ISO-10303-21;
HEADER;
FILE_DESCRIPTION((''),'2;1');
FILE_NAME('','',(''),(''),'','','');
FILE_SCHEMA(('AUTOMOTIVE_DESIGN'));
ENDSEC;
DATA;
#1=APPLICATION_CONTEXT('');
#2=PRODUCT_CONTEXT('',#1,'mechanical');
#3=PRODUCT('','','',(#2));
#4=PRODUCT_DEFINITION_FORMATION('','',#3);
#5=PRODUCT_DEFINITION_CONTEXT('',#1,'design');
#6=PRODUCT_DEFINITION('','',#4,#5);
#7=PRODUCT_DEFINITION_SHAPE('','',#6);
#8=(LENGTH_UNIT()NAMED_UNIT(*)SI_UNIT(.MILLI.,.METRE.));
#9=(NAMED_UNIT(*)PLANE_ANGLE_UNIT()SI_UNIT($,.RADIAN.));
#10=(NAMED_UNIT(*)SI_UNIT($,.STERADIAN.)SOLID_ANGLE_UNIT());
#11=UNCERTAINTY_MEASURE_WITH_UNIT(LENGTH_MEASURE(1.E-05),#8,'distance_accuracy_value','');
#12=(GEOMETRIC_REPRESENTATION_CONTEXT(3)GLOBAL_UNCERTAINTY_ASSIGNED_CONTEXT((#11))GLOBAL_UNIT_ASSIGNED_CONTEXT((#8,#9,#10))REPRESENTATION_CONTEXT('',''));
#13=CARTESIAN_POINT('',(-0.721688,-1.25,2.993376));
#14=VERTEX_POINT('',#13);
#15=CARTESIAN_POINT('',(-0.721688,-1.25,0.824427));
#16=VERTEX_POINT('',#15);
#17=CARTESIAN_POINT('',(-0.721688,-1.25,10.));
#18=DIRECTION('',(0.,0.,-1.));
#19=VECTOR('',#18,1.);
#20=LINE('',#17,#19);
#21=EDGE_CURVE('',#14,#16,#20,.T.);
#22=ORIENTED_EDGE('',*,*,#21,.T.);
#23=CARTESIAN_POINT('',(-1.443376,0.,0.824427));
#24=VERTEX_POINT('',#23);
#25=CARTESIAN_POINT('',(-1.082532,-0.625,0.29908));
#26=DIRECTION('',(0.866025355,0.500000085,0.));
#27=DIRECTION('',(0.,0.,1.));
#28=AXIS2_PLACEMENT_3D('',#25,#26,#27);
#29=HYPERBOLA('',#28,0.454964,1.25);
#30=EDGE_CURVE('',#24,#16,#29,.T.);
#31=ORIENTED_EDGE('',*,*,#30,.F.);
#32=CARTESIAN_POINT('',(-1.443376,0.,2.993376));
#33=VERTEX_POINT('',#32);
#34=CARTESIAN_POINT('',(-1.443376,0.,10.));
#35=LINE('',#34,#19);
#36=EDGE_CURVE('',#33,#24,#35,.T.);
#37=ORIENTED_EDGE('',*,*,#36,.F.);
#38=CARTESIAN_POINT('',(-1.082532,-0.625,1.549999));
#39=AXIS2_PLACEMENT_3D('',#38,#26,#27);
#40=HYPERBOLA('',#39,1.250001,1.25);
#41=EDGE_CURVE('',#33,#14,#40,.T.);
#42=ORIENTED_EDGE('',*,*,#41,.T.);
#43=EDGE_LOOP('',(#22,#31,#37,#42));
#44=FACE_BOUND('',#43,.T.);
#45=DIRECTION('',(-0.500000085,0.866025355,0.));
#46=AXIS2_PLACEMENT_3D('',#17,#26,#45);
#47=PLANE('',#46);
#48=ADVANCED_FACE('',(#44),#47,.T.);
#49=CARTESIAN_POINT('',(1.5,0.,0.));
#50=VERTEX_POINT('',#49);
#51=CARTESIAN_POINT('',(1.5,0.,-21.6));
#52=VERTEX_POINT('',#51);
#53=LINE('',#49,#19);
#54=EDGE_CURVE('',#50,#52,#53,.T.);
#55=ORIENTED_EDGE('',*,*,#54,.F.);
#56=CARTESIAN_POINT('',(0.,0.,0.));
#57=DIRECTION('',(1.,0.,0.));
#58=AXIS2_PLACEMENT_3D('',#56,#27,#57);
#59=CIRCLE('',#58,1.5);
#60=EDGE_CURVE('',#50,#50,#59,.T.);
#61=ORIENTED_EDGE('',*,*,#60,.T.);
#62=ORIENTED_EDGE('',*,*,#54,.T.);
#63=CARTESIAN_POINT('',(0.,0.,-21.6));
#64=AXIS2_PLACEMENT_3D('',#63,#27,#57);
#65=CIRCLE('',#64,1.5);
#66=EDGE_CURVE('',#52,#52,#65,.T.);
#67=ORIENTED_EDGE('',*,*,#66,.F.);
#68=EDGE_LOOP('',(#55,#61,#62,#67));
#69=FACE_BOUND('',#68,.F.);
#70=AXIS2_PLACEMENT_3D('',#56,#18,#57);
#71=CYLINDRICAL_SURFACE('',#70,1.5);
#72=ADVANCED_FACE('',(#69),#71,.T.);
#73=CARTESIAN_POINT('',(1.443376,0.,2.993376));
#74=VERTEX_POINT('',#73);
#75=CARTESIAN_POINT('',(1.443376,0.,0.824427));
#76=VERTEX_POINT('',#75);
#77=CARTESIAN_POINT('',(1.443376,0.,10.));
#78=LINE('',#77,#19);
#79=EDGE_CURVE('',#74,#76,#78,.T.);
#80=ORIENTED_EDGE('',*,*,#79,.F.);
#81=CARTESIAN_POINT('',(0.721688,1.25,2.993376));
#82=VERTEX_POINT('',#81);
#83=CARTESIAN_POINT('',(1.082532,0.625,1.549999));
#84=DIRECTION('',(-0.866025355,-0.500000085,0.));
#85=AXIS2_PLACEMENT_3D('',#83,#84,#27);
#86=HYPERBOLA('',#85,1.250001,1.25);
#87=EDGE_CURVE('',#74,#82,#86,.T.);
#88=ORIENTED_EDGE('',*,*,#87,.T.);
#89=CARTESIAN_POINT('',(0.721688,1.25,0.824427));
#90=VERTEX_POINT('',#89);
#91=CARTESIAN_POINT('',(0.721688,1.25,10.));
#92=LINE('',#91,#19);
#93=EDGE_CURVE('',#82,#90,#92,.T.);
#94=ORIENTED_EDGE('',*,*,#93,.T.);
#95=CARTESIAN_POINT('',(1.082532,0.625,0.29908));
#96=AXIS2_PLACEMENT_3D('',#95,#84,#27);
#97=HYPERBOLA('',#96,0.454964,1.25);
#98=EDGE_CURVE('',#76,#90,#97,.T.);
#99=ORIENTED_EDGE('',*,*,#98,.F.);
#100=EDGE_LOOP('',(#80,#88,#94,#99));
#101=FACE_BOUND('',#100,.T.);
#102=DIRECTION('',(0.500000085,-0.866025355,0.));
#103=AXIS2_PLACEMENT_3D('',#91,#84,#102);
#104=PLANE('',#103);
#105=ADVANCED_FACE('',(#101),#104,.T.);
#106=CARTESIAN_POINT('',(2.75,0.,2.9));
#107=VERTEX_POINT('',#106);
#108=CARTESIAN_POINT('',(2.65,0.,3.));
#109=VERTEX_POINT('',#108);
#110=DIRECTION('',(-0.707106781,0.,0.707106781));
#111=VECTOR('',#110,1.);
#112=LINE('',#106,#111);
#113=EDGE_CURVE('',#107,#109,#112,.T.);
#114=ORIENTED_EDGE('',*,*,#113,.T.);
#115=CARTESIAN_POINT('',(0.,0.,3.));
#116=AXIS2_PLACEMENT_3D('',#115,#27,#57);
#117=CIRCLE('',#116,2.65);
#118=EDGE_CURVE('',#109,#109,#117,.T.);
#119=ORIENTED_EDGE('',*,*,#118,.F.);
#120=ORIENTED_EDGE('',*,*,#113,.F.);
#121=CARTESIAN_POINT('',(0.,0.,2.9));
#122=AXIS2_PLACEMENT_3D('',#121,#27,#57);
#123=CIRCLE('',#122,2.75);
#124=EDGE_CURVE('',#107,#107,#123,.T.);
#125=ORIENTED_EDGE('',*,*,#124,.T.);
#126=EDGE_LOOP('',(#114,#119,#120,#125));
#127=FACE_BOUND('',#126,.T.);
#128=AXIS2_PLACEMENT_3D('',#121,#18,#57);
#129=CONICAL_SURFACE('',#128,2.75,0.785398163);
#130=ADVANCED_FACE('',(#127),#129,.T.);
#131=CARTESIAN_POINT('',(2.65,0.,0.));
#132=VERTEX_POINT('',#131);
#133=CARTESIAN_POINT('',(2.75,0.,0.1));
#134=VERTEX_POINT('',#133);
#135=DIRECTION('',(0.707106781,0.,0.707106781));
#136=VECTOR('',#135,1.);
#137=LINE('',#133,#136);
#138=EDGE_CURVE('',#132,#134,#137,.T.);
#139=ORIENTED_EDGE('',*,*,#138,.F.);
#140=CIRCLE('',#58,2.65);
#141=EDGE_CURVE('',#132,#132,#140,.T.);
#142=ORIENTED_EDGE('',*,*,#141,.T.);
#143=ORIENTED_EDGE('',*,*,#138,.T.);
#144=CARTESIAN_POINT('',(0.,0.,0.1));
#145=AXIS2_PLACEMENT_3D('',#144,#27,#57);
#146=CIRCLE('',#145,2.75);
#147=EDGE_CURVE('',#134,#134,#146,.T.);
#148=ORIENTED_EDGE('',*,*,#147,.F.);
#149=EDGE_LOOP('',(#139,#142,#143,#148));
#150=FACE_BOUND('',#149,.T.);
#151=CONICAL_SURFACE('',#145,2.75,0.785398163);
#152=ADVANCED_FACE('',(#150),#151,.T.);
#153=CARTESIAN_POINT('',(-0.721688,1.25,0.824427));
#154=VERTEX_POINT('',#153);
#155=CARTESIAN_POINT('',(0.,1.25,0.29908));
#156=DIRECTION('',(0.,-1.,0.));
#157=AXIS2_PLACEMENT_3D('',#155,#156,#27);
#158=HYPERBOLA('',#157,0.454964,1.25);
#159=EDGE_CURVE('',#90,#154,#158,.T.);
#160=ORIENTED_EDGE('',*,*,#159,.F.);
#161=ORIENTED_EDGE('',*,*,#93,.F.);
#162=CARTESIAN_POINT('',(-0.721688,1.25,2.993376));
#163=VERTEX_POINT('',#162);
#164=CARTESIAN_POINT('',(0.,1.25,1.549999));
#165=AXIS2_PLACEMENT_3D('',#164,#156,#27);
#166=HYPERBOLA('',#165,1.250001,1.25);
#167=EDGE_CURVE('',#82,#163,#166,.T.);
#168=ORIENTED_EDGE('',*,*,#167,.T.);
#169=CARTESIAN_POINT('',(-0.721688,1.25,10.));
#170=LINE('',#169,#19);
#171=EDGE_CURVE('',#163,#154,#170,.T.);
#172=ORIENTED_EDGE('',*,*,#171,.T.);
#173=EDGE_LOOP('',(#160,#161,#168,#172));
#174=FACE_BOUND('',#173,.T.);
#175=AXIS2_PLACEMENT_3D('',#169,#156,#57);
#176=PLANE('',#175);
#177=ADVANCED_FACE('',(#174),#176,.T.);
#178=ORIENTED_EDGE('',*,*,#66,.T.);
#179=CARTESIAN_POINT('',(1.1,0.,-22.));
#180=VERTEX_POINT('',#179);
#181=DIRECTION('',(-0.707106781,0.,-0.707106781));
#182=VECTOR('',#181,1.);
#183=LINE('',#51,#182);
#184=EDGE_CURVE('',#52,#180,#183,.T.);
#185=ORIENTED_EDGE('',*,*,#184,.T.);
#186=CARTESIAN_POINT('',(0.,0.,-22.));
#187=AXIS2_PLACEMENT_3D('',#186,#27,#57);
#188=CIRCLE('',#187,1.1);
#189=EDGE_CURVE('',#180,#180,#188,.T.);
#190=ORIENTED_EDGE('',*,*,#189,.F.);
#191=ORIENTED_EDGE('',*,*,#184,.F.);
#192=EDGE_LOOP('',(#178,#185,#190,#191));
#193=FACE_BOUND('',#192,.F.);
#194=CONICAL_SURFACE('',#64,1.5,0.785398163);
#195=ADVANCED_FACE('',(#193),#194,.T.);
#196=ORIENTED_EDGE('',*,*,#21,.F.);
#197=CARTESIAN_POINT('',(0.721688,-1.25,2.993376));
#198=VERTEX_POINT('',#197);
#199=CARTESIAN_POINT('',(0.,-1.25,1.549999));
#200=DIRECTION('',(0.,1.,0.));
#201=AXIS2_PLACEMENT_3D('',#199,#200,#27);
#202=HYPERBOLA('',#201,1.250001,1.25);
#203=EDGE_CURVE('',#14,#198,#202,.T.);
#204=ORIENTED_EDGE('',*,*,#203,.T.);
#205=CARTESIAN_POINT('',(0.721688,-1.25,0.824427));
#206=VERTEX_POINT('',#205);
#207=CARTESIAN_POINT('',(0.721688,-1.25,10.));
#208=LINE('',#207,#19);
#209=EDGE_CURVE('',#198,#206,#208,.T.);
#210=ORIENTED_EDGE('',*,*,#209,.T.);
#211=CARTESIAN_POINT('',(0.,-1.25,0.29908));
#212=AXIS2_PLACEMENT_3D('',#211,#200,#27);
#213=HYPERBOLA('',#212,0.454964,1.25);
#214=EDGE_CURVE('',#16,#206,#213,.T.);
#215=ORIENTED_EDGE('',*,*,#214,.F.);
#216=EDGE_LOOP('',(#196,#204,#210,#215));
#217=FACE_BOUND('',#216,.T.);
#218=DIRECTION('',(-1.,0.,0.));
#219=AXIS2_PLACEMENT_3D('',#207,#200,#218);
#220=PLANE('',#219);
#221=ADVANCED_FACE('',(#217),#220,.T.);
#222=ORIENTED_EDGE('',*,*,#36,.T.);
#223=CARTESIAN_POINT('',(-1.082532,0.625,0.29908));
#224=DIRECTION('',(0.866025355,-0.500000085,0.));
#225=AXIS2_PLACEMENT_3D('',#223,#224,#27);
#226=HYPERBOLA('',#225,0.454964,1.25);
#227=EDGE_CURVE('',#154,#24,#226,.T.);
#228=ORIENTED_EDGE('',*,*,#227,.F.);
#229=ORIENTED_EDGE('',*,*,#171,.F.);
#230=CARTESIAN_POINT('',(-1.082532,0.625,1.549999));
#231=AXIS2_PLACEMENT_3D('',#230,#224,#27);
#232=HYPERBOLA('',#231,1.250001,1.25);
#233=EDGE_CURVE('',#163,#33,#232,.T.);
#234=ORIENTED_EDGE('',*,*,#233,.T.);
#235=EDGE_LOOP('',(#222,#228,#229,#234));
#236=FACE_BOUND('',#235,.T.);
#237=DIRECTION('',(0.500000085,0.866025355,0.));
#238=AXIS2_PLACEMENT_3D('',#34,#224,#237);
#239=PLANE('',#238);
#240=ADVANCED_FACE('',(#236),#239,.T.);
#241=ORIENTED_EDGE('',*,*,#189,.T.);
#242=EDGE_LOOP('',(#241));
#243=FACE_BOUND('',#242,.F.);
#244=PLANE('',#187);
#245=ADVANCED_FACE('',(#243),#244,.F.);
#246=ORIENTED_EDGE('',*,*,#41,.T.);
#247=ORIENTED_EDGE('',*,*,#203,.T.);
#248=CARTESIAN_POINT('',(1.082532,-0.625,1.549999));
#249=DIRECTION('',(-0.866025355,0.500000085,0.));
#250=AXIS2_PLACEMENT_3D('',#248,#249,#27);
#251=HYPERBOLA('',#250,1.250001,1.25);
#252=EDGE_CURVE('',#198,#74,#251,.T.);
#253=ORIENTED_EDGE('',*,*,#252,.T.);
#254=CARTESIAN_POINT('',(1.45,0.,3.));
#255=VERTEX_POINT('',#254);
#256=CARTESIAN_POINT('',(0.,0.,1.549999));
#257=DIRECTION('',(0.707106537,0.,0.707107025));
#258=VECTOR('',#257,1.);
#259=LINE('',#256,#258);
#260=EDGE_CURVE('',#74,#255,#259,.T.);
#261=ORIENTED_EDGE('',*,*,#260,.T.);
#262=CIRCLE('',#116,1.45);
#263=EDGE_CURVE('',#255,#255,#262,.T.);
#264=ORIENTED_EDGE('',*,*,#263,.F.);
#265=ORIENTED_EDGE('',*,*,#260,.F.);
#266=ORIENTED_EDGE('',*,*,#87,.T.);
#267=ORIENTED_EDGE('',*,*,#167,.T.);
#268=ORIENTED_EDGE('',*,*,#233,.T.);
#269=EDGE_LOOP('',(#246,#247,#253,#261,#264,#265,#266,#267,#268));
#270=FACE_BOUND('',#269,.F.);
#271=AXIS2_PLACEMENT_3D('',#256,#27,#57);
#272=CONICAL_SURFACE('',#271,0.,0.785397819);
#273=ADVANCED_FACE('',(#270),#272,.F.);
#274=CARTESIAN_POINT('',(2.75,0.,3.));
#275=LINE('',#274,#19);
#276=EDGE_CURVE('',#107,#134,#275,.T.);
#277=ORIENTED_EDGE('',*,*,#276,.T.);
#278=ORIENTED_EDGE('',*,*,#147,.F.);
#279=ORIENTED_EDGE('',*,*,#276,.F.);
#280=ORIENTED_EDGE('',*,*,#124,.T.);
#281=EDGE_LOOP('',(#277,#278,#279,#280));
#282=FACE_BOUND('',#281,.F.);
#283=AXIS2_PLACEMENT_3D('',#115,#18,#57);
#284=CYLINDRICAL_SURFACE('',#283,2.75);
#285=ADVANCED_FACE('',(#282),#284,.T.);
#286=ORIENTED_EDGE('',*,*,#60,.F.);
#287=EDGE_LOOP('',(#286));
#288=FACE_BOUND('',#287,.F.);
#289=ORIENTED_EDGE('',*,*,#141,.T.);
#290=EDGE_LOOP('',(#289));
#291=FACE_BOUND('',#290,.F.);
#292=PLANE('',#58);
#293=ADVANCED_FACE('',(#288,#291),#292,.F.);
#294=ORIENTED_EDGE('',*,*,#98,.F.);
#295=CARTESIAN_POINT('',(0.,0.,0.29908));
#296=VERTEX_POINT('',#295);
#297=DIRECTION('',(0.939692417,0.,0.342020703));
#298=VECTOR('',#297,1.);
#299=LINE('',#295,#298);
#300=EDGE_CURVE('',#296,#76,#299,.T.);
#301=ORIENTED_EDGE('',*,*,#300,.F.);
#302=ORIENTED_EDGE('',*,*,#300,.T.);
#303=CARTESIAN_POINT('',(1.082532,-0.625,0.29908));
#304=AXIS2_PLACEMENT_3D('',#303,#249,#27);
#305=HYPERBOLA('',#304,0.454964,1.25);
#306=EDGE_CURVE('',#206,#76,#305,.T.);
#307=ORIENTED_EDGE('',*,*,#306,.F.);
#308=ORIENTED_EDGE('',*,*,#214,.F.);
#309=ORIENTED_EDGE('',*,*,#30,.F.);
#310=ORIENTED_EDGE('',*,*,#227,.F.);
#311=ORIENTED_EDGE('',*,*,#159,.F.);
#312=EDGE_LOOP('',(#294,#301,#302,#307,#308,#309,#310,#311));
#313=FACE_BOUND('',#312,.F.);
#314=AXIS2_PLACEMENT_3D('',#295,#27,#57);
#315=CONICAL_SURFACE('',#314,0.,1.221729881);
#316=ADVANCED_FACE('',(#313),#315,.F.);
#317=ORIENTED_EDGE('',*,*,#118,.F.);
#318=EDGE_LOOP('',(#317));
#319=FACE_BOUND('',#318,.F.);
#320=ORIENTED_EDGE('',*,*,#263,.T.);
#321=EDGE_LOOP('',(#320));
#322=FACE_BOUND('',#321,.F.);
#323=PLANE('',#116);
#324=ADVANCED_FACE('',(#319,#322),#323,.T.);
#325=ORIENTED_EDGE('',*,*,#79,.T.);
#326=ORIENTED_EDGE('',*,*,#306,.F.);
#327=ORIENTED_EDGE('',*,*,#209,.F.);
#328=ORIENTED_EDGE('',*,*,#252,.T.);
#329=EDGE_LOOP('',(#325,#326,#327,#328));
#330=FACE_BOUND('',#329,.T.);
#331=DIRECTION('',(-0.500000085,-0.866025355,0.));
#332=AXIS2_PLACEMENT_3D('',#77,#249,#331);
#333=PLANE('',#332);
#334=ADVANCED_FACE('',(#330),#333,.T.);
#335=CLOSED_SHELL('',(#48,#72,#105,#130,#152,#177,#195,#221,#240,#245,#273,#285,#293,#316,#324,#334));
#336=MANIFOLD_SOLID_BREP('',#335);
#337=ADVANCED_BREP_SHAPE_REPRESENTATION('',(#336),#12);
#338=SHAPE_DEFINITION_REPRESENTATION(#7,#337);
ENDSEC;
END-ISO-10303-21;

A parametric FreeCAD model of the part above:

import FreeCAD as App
import Part
import Sketcher

V = App.Vector
Q = App.Units.Quantity


def edges_at(feature, points):
    """Names of the edges that pass closest to the given points."""
    edges = feature.Shape.Edges
    near = lambda p: min(range(len(edges)), key=lambda i: edges[i].distToShape(Part.Vertex(*p))[0])
    return sorted({f"Edge{near(p) + 1}" for p in points})


def add_polygon(sketch, points):
    """Adds a closed chain of lines whose ends are joined by coincident constraints."""
    first, n = sketch.GeometryCount, len(points)
    for a, b in zip(points, points[1:] + points[:1]):
        sketch.addGeometry(Part.LineSegment(App.Vector(*a, 0), App.Vector(*b, 0)), False)
    for i in range(n):
        sketch.addConstraint(Sketcher.Constraint("Coincident", first + i, 2, first + (i + 1) % n, 1))

doc = App.newDocument("Part")
params = doc.addObject("Spreadsheet::Sheet", "Params")
for row, (alias, value) in enumerate([
    ("sketch1_height", "8.7 mm"),
    ("sketch1_width", "2.75 mm"),
    ("revolution_angle", "360 deg"),
    ("sketch2_diameter", "7.5 mm"),
    ("sketch3_height", "22 mm"),
    ("sketch3_height2", "3 mm"),
    ("sketch3_width", "1.3 mm"),
    ("sketch3_width2", "1.5 mm"),
    ("sketch3_width3", "1.25 mm"),
    ("revolution2_angle", "360 deg"),
    ("chamfer_size", "0.4 mm"),
    ("chamfer2_size", "0.1 mm"),
], start=1):
    params.set(f"A{row}", alias)
    params.set(f"B{row}", "=" + value)
    params.setAlias(f"B{row}", alias)

body = doc.addObject("PartDesign::Body", "Body")

sketch1 = doc.addObject("Sketcher::SketchObject", "Sketch")
body.addObject(sketch1)
sketch1.AttachmentSupport = (doc.XZ_Plane, [""])
sketch1.MapMode = "FlatFace"
add_polygon(sketch1, [(0, 0.3), (2.8, 1.3), (2.8, 10), (0, 10)])
sketch1.addConstraint(Sketcher.Constraint("Vertical", 1))
sketch1.addConstraint(Sketcher.Constraint("Horizontal", 2))
sketch1.addConstraint(Sketcher.Constraint("Vertical", 3))
sketch1.addConstraint(Sketcher.Constraint("PointOnObject", 2, 2, -2))
sketch1.addConstraint(Sketcher.Constraint("DistanceY", 1, 1, 1, 2, Q("8.7 mm")))
sketch1.addConstraint(Sketcher.Constraint("DistanceY", -1, 1, 1, 2, Q("10 mm")))
sketch1.addConstraint(Sketcher.Constraint("DistanceX", 2, 2, 2, 1, Q("2.75 mm")))
sketch1.addConstraint(Sketcher.Constraint("DistanceY", 3, 2, 3, 1, Q("9.70092 mm")))
sketch1.setExpression("Constraints[8]", "Params.sketch1_height")
sketch1.setExpression("Constraints[10]", "Params.sketch1_width")
revolution = doc.addObject("PartDesign::Revolution", "Revolution")
body.addObject(revolution)
revolution.Profile = sketch1
revolution.ReferenceAxis = (sketch1, ["V_Axis"])
revolution.setExpression("Angle", "Params.revolution_angle")

sketch2 = doc.addObject("Sketcher::SketchObject", "Sketch001")
body.addObject(sketch2)
sketch2.AttachmentSupport = (doc.XY_Plane, [""])
sketch2.MapMode = "FlatFace"
sketch2.AttachmentOffset = App.Placement(V(0, 0, 10), App.Rotation())
sketch2.addGeometry(Part.Circle(V(0, 0, 0), V(0, 0, 1), 3.8), False)
add_polygon(sketch2, [(1.4, 0), (0.7, -1.2), (-0.7, -1.2), (-1.4, 0), (-0.7, 1.2), (0.7, 1.2)])
sketch2.addConstraint(Sketcher.Constraint("Horizontal", 2))
sketch2.addConstraint(Sketcher.Constraint("Horizontal", 5))
sketch2.addConstraint(Sketcher.Constraint("Coincident", 0, 3, -1, 1))
sketch2.addConstraint(Sketcher.Constraint("Symmetric", 1, 2, 4, 2, -1, 1))
sketch2.addConstraint(Sketcher.Constraint("Symmetric", 3, 2, 6, 2, -1, 1))
sketch2.addConstraint(Sketcher.Constraint("PointOnObject", 3, 2, -1))
sketch2.addConstraint(Sketcher.Constraint("Parallel", 3, 6))
sketch2.addConstraint(Sketcher.Constraint("Vertical", 2, 2, 4, 2))
sketch2.addConstraint(Sketcher.Constraint("Diameter", 0, Q("7.5 mm")))
sketch2.addConstraint(Sketcher.Constraint("Angle", 1, Q("-120.000006 deg")))
sketch2.addConstraint(Sketcher.Constraint("DistanceY", 2, 2, 4, 2, Q("2.5 mm")))
sketch2.addConstraint(Sketcher.Constraint("DistanceX", 2, 2, 2, 1, Q("1.443376 mm")))
sketch2.setExpression("Constraints[14]", "Params.sketch2_diameter")
pocket1 = doc.addObject("PartDesign::Pocket", "Pocket")
body.addObject(pocket1)
pocket1.Profile = sketch2
pocket1.Type = "ThroughAll"
body2 = doc.addObject("PartDesign::Body", "Body001")

sketch3 = doc.addObject("Sketcher::SketchObject", "Sketch002")
body2.addObject(sketch3)
sketch3.AttachmentSupport = (doc.getObject("XZ_Plane001"), [""])
sketch3.MapMode = "FlatFace"
add_polygon(sketch3, [(2.8, 3), (1.4, 3), (0, 1.5), (0, -22), (1.5, -22), (1.5, 0), (2.8, 0)])
sketch3.addConstraint(Sketcher.Constraint("Horizontal", 0))
sketch3.addConstraint(Sketcher.Constraint("Vertical", 2))
sketch3.addConstraint(Sketcher.Constraint("Horizontal", 3))
sketch3.addConstraint(Sketcher.Constraint("Vertical", 4))
sketch3.addConstraint(Sketcher.Constraint("Horizontal", 5))
sketch3.addConstraint(Sketcher.Constraint("Vertical", 6))
sketch3.addConstraint(Sketcher.Constraint("PointOnObject", 1, 2, -2))
sketch3.addConstraint(Sketcher.Constraint("PointOnObject", 4, 2, -1))
sketch3.addConstraint(Sketcher.Constraint("DistanceY", 4, 1, 4, 2, Q("22 mm")))
sketch3.addConstraint(Sketcher.Constraint("DistanceY", 6, 1, 6, 2, Q("3 mm")))
sketch3.addConstraint(Sketcher.Constraint("Angle", 1, Q("-134.99998 deg")))
sketch3.addConstraint(Sketcher.Constraint("DistanceX", 0, 2, 0, 1, Q("1.3 mm")))
sketch3.addConstraint(Sketcher.Constraint("DistanceX", 3, 1, 3, 2, Q("1.5 mm")))
sketch3.addConstraint(Sketcher.Constraint("DistanceX", 5, 1, 5, 2, Q("1.25 mm")))
sketch3.setExpression("Constraints[15]", "Params.sketch3_height")
sketch3.setExpression("Constraints[16]", "Params.sketch3_height2")
sketch3.setExpression("Constraints[18]", "Params.sketch3_width")
sketch3.setExpression("Constraints[19]", "Params.sketch3_width2")
sketch3.setExpression("Constraints[20]", "Params.sketch3_width3")
revolution2 = doc.addObject("PartDesign::Revolution", "Revolution001")
body2.addObject(revolution2)
revolution2.Profile = sketch3
revolution2.ReferenceAxis = (sketch3, ["V_Axis"])
revolution2.setExpression("Angle", "Params.revolution2_angle")
doc.recompute()

boolean = doc.addObject("PartDesign::Boolean", "Boolean")
body2.addObject(boolean)
boolean.Type = "Cut"
boolean.addObjects([body])
doc.recompute()

chamfer = doc.addObject("PartDesign::Chamfer", "Chamfer")
body2.addObject(chamfer)
chamfer.Base = (boolean, edges_at(boolean, [(-1.5, 0, -22)]))
chamfer.setExpression("Size", "Params.chamfer_size")
doc.recompute()

chamfer2 = doc.addObject("PartDesign::Chamfer", "Chamfer001")
body2.addObject(chamfer2)
chamfer2.Base = (chamfer, edges_at(chamfer, [(-2.75, 0, 0), (-2.75, 0, 3)]))
chamfer2.setExpression("Size", "Params.chamfer2_size")

doc.recompute()
